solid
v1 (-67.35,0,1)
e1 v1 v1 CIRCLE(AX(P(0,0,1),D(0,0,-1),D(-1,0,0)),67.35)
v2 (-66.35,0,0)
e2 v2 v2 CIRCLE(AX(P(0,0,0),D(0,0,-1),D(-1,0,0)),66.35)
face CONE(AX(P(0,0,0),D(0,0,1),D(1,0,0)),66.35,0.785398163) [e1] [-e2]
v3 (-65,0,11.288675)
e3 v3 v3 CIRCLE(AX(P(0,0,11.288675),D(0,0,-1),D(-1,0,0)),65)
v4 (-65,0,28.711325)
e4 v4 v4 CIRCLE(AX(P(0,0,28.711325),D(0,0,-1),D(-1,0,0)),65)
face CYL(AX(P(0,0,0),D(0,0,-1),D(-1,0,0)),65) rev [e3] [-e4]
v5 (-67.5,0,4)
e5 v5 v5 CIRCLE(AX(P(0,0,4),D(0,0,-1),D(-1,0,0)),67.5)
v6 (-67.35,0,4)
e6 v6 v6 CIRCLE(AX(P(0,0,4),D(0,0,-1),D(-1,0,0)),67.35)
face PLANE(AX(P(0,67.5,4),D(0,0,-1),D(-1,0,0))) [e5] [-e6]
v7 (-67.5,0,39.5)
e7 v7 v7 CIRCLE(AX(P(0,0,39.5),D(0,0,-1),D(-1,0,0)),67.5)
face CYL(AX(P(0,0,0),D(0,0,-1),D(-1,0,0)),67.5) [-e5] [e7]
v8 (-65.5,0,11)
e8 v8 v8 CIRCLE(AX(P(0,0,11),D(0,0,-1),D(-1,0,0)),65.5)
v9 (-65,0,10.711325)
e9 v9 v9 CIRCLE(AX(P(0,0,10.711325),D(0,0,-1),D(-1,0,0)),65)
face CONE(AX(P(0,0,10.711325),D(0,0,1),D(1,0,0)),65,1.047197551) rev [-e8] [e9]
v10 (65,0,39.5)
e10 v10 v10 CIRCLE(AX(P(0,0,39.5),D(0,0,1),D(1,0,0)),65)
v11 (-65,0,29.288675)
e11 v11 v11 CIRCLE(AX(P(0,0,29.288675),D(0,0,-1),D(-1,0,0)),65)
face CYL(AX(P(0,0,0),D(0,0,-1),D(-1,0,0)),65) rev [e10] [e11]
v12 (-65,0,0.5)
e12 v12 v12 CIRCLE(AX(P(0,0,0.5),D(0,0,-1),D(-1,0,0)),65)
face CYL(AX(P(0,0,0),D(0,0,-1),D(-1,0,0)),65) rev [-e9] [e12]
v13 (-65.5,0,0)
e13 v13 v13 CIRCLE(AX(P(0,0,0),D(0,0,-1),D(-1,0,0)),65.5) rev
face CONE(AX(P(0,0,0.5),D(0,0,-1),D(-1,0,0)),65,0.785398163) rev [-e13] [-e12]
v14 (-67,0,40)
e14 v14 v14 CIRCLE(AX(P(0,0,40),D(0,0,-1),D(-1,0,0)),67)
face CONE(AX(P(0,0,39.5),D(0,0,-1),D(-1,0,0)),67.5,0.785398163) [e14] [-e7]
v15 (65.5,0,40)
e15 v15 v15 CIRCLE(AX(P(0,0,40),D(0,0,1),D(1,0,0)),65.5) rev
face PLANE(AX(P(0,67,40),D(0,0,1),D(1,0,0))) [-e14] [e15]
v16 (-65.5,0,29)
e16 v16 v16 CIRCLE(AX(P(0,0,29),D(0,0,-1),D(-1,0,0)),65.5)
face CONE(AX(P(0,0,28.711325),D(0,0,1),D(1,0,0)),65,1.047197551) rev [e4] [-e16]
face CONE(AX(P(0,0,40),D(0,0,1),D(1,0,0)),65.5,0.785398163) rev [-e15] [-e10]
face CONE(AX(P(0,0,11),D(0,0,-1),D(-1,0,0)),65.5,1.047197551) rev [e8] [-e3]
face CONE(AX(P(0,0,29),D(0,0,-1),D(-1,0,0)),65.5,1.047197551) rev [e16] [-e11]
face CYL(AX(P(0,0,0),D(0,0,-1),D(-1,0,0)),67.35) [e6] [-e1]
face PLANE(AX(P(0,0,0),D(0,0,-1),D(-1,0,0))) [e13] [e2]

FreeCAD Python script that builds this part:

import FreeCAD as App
import Part
import Sketcher
from FreeCAD import Vector
Q = App.Units.Quantity


def edges_at(feature, points):
    """Names of the edges that pass closest to the given points."""
    edges = feature.Shape.Edges
    near = lambda p: min(range(len(edges)), key=lambda i: edges[i].distToShape(Part.Vertex(*p))[0])
    return sorted({f"Edge{near(p) + 1}" for p in points})

doc = App.newDocument("Part")
body = doc.addObject("PartDesign::Body", "Body")

sketch1 = body.newObject("Sketcher::SketchObject", "Sketch")
sketch1.AttachmentSupport = (doc.getObject("YZ_Plane"), [""])
sketch1.MapMode = "FlatFace"
sketch1.addGeometry([
    Part.LineSegment(Vector(0, 40, 0), Vector(0, 0, 0)),
    Part.LineSegment(Vector(0, 0, 0), Vector(66.35, 0, 0)),
    Part.LineSegment(Vector(66.35, 0, 0), Vector(67.35, 1, 0)),
    Part.LineSegment(Vector(67.35, 1, 0), Vector(67.35, 4, 0)),
    Part.LineSegment(Vector(67.35, 4, 0), Vector(67.5, 4, 0)),
    Part.LineSegment(Vector(67.5, 4, 0), Vector(67.5, 39.5, 0)),
    Part.LineSegment(Vector(67.5, 39.5, 0), Vector(67, 40, 0)),
    Part.LineSegment(Vector(67, 40, 0), Vector(0, 40, 0)),
], False)
sketch1.addConstraint([
    Sketcher.Constraint("Coincident", 0, 2, 1, 1),
    Sketcher.Constraint("Coincident", 1, 2, 2, 1),
    Sketcher.Constraint("Coincident", 2, 2, 3, 1),
    Sketcher.Constraint("Coincident", 3, 2, 4, 1),
    Sketcher.Constraint("Coincident", 4, 2, 5, 1),
    Sketcher.Constraint("Coincident", 5, 2, 6, 1),
    Sketcher.Constraint("Coincident", 6, 2, 7, 1),
    Sketcher.Constraint("Coincident", 7, 2, 0, 1),
    Sketcher.Constraint("Vertical", 0),
    Sketcher.Constraint("Horizontal", 1),
    Sketcher.Constraint("Vertical", 3),
    Sketcher.Constraint("Horizontal", 4),
    Sketcher.Constraint("Vertical", 5),
    Sketcher.Constraint("Horizontal", 7),
    Sketcher.Constraint("Coincident", 0, 2, -1, 1),
    Sketcher.Constraint("Perpendicular", 2, 6),
    Sketcher.Constraint("DistanceX", 7, 2, 7, 1, Q("67 mm")),
    Sketcher.Constraint("DistanceY", 0, 2, 0, 1, Q("40 mm")),
    Sketcher.Constraint("DistanceY", 3, 1, 3, 2, Q("3 mm")),
    Sketcher.Constraint("Angle", 2, Q("45 deg")),
    Sketcher.Constraint("DistanceY", 5, 1, 5, 2, Q("35.5 mm")),
    Sketcher.Constraint("DistanceY", -1, 1, 2, 2, Q("1 mm")),
    Sketcher.Constraint("DistanceX", 1, 1, 1, 2, Q("66.35 mm")),
])
revolution = body.newObject("PartDesign::Revolution", "Revolution")
revolution.Profile = sketch1
revolution.ReferenceAxis = (sketch1, ["V_Axis"])
revolution.Angle = 360

sketch2 = body.newObject("Sketcher::SketchObject", "Sketch001")
sketch2.AttachmentSupport = (doc.getObject("YZ_Plane"), [""])
sketch2.MapMode = "FlatFace"
sketch2.addGeometry([
    Part.LineSegment(Vector(0, 40, 0), Vector(0, 0, 0)),
    Part.LineSegment(Vector(0, 0, 0), Vector(65, 0, 0)),
    Part.LineSegment(Vector(65, 0, 0), Vector(65, 10.7, 0)),
    Part.LineSegment(Vector(65, 10.7, 0), Vector(65.5, 11, 0)),
    Part.LineSegment(Vector(65.5, 11, 0), Vector(65, 11.3, 0)),
    Part.LineSegment(Vector(65, 11.3, 0), Vector(65, 28.7, 0)),
    Part.LineSegment(Vector(65, 28.7, 0), Vector(65.5, 29, 0)),
    Part.LineSegment(Vector(65.5, 29, 0), Vector(65, 29.3, 0)),
    Part.LineSegment(Vector(65, 29.3, 0), Vector(65, 40, 0)),
    Part.LineSegment(Vector(65, 40, 0), Vector(0, 40, 0)),
], False)
sketch2.addConstraint([
    Sketcher.Constraint("Coincident", 0, 2, 1, 1),
    Sketcher.Constraint("Coincident", 1, 2, 2, 1),
    Sketcher.Constraint("Coincident", 2, 2, 3, 1),
    Sketcher.Constraint("Coincident", 3, 2, 4, 1),
    Sketcher.Constraint("Coincident", 4, 2, 5, 1),
    Sketcher.Constraint("Coincident", 5, 2, 6, 1),
    Sketcher.Constraint("Coincident", 6, 2, 7, 1),
    Sketcher.Constraint("Coincident", 7, 2, 8, 1),
    Sketcher.Constraint("Coincident", 8, 2, 9, 1),
    Sketcher.Constraint("Coincident", 9, 2, 0, 1),
    Sketcher.Constraint("Vertical", 0),
    Sketcher.Constraint("Horizontal", 1),
    Sketcher.Constraint("Vertical", 2),
    Sketcher.Constraint("Vertical", 5),
    Sketcher.Constraint("Vertical", 8),
    Sketcher.Constraint("Horizontal", 9),
    Sketcher.Constraint("Coincident", 0, 2, -1, 1),
    Sketcher.Constraint("Parallel", 3, 6),
    Sketcher.Constraint("Parallel", 4, 7),
    Sketcher.Constraint("Vertical", 2, 2, 4, 2),
    Sketcher.Constraint("Vertical", 3, 2, 6, 2),
    Sketcher.Constraint("Vertical", 5, 2, 7, 2),
    Sketcher.Constraint("Equal", 2, 8),
    Sketcher.Constraint("Equal", 3, 4),
    Sketcher.Constraint("DistanceX", 1, 1, 1, 2, Q("65 mm")),
    Sketcher.Constraint("DistanceY", 0, 2, 0, 1, Q("40 mm")),
    Sketcher.Constraint("Angle", 3, Q("30 deg")),
    Sketcher.Constraint("DistanceY", -1, 1, 3, 2, Q("11 mm")),
    Sketcher.Constraint("DistanceX", -1, 1, 3, 2, Q("65.5 mm")),
])
groove = body.newObject("PartDesign::Groove", "Groove")
groove.Profile = sketch2
groove.ReferenceAxis = (sketch2, ["V_Axis"])
groove.Angle = 360
doc.recompute()

chamfer = body.newObject("PartDesign::Chamfer", "Chamfer")
chamfer.Base = (groove, edges_at(groove, [(65, 0, 0), (65, 0, 40)]))
chamfer.Size = 0.5

doc.recompute()
